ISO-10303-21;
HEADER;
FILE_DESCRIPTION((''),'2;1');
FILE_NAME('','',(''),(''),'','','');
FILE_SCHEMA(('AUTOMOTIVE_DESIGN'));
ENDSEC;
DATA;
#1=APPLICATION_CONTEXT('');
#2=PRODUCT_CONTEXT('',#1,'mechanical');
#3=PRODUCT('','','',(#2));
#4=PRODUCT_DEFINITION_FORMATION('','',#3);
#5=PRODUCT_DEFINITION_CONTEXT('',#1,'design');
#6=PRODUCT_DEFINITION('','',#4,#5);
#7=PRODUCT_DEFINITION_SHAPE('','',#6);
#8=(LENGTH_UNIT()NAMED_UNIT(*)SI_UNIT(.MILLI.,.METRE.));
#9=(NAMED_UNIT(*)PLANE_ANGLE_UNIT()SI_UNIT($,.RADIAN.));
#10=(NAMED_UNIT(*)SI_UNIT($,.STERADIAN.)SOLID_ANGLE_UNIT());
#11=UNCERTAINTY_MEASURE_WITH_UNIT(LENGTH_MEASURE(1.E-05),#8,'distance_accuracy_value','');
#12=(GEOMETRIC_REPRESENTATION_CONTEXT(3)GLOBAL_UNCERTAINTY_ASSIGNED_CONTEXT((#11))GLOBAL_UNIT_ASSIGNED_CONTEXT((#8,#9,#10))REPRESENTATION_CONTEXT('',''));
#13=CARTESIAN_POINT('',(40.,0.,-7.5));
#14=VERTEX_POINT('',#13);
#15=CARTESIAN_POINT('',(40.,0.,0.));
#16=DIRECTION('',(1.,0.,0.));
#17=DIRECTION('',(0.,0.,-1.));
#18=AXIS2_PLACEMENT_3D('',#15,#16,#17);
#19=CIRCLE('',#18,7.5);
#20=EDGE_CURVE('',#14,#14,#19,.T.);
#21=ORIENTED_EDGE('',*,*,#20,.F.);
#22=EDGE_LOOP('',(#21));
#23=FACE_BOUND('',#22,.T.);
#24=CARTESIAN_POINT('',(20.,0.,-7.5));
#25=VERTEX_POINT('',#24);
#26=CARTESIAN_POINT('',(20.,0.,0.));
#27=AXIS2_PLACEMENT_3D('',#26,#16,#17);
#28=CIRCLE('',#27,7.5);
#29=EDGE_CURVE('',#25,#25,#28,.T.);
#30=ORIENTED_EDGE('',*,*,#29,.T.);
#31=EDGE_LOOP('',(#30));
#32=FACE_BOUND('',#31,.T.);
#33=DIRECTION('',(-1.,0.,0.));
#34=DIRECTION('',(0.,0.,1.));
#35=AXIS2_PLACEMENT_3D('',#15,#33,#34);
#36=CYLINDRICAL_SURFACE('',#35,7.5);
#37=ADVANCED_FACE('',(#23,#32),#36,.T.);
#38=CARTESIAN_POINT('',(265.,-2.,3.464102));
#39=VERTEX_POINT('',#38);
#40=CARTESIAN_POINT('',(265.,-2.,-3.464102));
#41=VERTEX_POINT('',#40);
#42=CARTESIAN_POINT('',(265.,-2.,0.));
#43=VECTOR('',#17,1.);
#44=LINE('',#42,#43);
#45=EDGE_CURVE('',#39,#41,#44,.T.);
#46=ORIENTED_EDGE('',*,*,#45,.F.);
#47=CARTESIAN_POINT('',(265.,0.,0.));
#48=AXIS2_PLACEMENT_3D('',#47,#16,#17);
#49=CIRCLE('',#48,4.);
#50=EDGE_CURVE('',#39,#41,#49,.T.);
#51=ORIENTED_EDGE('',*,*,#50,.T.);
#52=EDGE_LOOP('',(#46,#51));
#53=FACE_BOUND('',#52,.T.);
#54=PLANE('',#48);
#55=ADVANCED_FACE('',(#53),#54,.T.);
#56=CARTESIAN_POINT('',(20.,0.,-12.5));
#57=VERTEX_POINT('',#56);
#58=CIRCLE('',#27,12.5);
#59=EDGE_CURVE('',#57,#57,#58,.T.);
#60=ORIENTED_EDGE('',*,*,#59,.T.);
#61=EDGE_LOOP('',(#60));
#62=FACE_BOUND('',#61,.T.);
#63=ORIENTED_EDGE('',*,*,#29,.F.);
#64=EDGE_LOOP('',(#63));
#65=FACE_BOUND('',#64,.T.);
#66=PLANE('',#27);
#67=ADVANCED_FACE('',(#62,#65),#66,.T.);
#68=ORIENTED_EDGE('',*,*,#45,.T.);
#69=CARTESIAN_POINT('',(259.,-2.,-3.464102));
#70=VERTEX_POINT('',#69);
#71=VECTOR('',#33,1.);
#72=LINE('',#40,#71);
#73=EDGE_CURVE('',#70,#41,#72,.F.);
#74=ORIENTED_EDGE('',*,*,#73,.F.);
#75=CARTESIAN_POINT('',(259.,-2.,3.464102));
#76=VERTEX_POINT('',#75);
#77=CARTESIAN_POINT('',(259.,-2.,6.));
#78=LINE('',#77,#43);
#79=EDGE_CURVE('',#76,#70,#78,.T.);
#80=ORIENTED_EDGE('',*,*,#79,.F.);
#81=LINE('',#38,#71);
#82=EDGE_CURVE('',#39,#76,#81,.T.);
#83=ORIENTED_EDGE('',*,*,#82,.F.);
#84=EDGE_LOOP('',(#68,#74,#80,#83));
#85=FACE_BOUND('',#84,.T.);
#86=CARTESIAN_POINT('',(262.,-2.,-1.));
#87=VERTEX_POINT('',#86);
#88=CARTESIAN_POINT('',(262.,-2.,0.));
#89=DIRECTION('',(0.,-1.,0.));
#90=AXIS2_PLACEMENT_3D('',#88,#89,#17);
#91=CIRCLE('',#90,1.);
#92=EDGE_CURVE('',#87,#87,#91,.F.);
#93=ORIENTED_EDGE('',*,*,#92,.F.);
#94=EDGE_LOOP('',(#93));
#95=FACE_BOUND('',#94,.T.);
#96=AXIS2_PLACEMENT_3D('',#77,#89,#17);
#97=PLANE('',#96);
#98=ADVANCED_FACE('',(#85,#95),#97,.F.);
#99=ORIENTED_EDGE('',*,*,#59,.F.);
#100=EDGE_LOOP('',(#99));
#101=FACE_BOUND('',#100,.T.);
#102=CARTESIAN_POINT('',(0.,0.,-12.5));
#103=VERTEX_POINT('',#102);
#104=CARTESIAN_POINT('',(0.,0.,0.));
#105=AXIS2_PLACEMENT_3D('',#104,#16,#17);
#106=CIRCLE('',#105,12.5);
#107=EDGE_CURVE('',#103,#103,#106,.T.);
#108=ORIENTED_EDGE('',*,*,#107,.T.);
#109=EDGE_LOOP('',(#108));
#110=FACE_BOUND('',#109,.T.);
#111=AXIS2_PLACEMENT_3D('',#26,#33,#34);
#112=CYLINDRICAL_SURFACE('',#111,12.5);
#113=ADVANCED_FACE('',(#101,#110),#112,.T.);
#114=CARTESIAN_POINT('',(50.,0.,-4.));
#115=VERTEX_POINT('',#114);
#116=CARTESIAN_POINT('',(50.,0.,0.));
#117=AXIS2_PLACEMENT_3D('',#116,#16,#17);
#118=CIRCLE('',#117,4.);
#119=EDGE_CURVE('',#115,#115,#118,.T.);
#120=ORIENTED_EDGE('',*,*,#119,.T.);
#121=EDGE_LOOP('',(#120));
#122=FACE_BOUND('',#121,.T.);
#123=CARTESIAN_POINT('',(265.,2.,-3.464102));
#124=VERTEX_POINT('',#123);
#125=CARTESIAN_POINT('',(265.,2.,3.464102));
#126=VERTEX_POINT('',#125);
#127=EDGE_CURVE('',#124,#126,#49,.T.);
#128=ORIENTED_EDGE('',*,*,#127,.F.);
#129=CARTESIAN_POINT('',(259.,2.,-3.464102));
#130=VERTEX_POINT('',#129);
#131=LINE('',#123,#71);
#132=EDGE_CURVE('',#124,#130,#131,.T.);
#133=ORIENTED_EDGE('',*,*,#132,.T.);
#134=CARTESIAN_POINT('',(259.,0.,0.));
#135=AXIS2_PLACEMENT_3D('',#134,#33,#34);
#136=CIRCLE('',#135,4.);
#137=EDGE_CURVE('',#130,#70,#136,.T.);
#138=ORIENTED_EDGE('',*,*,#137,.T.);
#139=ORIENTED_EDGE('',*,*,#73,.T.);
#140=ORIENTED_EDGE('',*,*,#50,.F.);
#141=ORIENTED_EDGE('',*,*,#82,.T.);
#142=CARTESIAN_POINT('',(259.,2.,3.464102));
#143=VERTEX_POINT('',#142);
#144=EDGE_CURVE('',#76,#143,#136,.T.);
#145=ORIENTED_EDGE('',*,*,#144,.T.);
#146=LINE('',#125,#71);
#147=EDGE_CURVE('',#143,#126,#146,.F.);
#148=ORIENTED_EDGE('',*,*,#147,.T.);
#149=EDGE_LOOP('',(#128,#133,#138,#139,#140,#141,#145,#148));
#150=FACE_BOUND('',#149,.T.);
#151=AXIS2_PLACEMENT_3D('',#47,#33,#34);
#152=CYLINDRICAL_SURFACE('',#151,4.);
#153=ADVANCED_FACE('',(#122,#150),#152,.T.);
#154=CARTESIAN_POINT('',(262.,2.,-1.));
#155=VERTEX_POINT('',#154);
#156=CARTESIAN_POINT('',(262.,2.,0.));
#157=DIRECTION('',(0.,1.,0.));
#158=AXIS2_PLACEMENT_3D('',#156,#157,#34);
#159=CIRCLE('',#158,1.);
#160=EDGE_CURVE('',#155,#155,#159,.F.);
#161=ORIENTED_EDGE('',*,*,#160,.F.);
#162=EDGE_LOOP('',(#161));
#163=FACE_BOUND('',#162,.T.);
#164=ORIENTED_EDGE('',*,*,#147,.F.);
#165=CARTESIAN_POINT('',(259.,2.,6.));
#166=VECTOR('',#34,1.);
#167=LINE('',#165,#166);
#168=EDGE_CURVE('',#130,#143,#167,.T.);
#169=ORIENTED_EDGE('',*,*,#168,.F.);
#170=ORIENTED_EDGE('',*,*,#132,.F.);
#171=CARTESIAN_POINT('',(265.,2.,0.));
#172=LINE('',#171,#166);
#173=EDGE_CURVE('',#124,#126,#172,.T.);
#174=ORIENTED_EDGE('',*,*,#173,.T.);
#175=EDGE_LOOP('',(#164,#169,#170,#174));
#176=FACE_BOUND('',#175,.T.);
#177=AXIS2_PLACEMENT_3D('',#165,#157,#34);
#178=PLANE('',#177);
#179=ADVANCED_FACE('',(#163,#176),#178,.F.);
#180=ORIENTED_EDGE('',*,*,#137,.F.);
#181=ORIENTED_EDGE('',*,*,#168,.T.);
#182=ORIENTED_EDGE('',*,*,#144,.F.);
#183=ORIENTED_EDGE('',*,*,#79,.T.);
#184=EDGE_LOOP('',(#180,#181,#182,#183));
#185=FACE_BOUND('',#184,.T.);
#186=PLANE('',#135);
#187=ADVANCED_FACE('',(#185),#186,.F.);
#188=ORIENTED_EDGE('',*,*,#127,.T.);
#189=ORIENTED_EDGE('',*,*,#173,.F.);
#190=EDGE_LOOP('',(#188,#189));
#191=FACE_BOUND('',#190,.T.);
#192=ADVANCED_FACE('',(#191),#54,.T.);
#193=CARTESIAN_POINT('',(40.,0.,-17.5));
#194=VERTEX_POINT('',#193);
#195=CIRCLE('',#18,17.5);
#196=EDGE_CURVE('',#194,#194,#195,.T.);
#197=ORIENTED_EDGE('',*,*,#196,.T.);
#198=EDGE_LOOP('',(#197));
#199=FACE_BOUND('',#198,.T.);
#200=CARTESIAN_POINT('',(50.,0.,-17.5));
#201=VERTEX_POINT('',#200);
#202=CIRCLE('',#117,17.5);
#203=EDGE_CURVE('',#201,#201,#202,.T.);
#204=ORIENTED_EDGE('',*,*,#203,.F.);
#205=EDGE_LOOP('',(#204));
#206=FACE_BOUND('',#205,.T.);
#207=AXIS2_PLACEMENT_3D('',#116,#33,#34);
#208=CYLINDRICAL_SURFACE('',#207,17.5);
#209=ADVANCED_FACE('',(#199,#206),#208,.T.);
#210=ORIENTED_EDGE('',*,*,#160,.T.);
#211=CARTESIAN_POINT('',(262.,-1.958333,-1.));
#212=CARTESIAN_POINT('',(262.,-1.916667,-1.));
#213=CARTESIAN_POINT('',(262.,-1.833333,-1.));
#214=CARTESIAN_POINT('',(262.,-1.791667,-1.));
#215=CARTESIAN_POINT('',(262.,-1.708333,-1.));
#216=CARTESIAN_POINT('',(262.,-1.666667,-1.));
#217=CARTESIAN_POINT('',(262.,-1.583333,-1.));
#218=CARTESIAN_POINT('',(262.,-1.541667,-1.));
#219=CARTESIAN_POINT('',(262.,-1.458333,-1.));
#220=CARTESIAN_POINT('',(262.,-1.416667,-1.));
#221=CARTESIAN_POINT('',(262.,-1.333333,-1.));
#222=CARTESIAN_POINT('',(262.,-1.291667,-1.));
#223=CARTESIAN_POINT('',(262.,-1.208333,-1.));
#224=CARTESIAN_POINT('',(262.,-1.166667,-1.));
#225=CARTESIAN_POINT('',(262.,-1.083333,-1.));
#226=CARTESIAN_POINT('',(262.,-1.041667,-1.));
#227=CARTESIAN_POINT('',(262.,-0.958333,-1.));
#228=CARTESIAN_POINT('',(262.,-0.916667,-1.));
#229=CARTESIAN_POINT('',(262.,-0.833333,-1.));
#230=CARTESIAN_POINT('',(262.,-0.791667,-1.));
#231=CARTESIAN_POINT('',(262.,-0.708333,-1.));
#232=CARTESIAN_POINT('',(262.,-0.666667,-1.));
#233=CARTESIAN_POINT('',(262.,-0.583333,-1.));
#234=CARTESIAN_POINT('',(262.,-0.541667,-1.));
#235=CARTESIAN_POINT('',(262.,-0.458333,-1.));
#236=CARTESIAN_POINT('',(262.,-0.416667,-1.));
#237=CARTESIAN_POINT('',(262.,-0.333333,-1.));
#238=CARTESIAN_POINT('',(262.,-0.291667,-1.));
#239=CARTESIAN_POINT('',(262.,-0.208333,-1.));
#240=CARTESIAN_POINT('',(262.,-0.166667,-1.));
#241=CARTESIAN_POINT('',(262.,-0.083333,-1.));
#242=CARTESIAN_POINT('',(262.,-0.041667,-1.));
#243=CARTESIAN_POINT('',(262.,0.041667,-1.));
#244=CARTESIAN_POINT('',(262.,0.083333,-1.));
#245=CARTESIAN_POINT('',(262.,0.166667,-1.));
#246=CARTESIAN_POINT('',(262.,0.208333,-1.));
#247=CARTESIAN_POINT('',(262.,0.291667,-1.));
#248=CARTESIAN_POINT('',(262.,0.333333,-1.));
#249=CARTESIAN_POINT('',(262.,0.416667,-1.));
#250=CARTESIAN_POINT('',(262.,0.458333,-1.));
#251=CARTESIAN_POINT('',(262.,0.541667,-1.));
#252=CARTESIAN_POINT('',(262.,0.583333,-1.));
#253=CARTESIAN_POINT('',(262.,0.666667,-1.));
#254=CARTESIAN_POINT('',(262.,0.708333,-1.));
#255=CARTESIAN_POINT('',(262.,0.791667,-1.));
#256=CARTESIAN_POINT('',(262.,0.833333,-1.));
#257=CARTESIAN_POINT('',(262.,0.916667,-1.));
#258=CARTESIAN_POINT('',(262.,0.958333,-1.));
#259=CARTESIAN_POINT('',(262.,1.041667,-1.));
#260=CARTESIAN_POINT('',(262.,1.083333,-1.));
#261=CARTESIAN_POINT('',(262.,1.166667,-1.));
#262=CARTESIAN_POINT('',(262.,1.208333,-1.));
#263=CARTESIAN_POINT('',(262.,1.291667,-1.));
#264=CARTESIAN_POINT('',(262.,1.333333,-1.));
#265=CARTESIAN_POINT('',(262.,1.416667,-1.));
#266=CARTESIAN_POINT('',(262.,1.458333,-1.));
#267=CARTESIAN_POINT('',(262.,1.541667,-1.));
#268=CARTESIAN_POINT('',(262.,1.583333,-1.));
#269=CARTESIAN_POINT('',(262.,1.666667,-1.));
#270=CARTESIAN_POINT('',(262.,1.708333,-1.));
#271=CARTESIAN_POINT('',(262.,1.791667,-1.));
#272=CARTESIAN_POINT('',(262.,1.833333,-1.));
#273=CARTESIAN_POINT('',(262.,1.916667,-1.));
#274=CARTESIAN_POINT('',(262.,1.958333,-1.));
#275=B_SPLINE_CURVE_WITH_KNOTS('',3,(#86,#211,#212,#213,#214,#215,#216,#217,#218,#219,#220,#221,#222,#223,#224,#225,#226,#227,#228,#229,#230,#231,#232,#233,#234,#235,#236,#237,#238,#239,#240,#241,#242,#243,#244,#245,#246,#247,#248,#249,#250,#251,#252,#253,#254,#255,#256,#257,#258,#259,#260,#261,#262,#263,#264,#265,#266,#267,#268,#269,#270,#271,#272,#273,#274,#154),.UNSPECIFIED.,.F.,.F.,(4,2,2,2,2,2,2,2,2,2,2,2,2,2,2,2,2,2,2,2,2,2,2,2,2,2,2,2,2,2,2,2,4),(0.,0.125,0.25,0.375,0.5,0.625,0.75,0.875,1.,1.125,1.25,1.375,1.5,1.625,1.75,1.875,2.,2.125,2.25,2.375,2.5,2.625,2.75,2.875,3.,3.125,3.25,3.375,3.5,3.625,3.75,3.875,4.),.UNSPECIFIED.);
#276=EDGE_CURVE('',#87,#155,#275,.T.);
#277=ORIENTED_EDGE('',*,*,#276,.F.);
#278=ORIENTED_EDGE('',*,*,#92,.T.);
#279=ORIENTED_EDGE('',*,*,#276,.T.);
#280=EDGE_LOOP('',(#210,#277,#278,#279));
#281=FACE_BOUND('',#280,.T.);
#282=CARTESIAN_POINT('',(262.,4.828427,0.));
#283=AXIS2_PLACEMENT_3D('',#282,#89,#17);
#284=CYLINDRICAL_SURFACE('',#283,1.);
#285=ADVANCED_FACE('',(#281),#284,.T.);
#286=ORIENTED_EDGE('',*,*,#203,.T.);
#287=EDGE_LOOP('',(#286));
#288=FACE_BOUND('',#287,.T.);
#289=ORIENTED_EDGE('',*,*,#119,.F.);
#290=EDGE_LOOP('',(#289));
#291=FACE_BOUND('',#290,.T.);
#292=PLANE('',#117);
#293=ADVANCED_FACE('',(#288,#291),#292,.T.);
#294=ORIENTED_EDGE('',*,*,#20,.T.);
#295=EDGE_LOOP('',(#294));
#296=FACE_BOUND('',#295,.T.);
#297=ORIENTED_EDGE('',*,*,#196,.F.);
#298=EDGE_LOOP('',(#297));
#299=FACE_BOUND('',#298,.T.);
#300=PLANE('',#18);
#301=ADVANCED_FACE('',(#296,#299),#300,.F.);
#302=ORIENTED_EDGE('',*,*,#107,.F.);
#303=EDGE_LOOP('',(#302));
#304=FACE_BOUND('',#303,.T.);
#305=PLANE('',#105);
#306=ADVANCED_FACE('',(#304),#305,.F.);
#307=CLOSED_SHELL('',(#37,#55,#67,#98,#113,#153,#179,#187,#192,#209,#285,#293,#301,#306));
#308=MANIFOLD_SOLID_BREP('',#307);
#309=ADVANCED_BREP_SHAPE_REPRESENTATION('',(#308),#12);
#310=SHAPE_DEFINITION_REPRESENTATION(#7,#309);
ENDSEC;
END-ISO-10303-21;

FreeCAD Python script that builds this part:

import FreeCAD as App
import Part
import Sketcher


def add_polygon(sketch, points):
    """Adds a closed chain of lines whose ends are joined by coincident constraints."""
    first, n = sketch.GeometryCount, len(points)
    for a, b in zip(points, points[1:] + points[:1]):
        sketch.addGeometry(Part.LineSegment(App.Vector(*a, 0), App.Vector(*b, 0)), False)
    for i in range(n):
        sketch.addConstraint(Sketcher.Constraint("Coincident", first + i, 2, first + (i + 1) % n, 1))

doc = App.newDocument("Part")
body = doc.addObject("PartDesign::Body", "Body")

sketch1 = body.newObject("Sketcher::SketchObject", "Sketch")
sketch1.AttachmentSupport = (doc.getObject("YZ_Plane"), [""])
sketch1.MapMode = "FlatFace"
sketch1.addGeometry(Part.Circle(App.Vector(0, 0, 0), App.Vector(0, 0, 1), 12), False)
sketch1.addConstraint([
    Sketcher.Constraint("Coincident", 0, 3, -1, 1),
    Sketcher.Constraint("Diameter", 0, 25.0),
])
pad1 = body.newObject("PartDesign::Pad", "Pad")
pad1.Profile = sketch1
pad1.Length = 20

sketch2 = body.newObject("Sketcher::SketchObject", "Sketch001")
sketch2.AttachmentSupport = (doc.getObject("YZ_Plane"), [""])
sketch2.MapMode = "FlatFace"
sketch2.AttachmentOffset = App.Placement(App.Vector(0, 0, 20), App.Rotation())
sketch2.addGeometry(Part.Circle(App.Vector(0, 0, 0), App.Vector(0, 0, 1), 8), False)
sketch2.addConstraint([
    Sketcher.Constraint("Coincident", 0, 3, -1, 1),
    Sketcher.Constraint("Diameter", 0, 15.0),
])
pad2 = body.newObject("PartDesign::Pad", "Pad001")
pad2.Profile = sketch2
pad2.Length = 20

sketch3 = body.newObject("Sketcher::SketchObject", "Sketch002")
sketch3.AttachmentSupport = (doc.getObject("YZ_Plane"), [""])
sketch3.MapMode = "FlatFace"
sketch3.AttachmentOffset = App.Placement(App.Vector(0, 0, 40), App.Rotation())
sketch3.addGeometry(Part.Circle(App.Vector(0, 0, 0), App.Vector(0, 0, 1), 18), False)
sketch3.addConstraint([
    Sketcher.Constraint("Coincident", 0, 3, -1, 1),
    Sketcher.Constraint("Diameter", 0, 35.0),
])
pad3 = body.newObject("PartDesign::Pad", "Pad002")
pad3.Profile = sketch3
pad3.Length = 10

sketch4 = body.newObject("Sketcher::SketchObject", "Sketch003")
sketch4.AttachmentSupport = (doc.getObject("YZ_Plane"), [""])
sketch4.MapMode = "FlatFace"
sketch4.AttachmentOffset = App.Placement(App.Vector(0, 0, 50), App.Rotation())
sketch4.addGeometry(Part.Circle(App.Vector(0, 0, 0), App.Vector(0, 0, 1), 4), False)
sketch4.addConstraint([
    Sketcher.Constraint("Coincident", 0, 3, -1, 1),
    Sketcher.Constraint("Diameter", 0, 8.0),
])
pad4 = body.newObject("PartDesign::Pad", "Pad003")
pad4.Profile = sketch4
pad4.Length = 215

sketch5 = body.newObject("Sketcher::SketchObject", "Sketch004")
sketch5.AttachmentSupport = (doc.getObject("YZ_Plane"), [""])
sketch5.MapMode = "FlatFace"
sketch5.AttachmentOffset = App.Placement(App.Vector(0, 0, 265), App.Rotation())
add_polygon(sketch5, [(2, 6), (-2, 6), (-2, -6), (2, -6)])
sketch5.addConstraint([
    Sketcher.Constraint("Horizontal", 0),
    Sketcher.Constraint("Vertical", 1),
    Sketcher.Constraint("Horizontal", 2),
    Sketcher.Constraint("Vertical", 3),
    Sketcher.Constraint("Symmetric", 0, 2, 2, 2, -1, 1),
    Sketcher.Constraint("DistanceX", 0, 2, 0, 1, 4.0),
    Sketcher.Constraint("DistanceY", 1, 2, 1, 1, 12.0),
])
pocket1 = body.newObject("PartDesign::Pocket", "Pocket")
pocket1.Profile = sketch5
pocket1.Length = 6

sketch6 = body.newObject("Sketcher::SketchObject", "Sketch005")
sketch6.AttachmentSupport = (doc.getObject("XZ_Plane"), [""])
sketch6.MapMode = "FlatFace"
sketch6.AttachmentOffset = App.Placement(App.Vector(0, 0, 2), App.Rotation())
sketch6.addGeometry(Part.Circle(App.Vector(262, 0, 0), App.Vector(0, 0, 1), 1), False)
sketch6.addConstraint([
    Sketcher.Constraint("PointOnObject", 0, 3, -1),
    Sketcher.Constraint("Diameter", 0, 2.0),
    Sketcher.Constraint("DistanceX", -1, 1, 0, 3, 262.0),
])
pad5 = body.newObject("PartDesign::Pad", "Pad004")
pad5.Profile = sketch6
pad5.Length = 4
pad5.Reversed = True

doc.recompute()
